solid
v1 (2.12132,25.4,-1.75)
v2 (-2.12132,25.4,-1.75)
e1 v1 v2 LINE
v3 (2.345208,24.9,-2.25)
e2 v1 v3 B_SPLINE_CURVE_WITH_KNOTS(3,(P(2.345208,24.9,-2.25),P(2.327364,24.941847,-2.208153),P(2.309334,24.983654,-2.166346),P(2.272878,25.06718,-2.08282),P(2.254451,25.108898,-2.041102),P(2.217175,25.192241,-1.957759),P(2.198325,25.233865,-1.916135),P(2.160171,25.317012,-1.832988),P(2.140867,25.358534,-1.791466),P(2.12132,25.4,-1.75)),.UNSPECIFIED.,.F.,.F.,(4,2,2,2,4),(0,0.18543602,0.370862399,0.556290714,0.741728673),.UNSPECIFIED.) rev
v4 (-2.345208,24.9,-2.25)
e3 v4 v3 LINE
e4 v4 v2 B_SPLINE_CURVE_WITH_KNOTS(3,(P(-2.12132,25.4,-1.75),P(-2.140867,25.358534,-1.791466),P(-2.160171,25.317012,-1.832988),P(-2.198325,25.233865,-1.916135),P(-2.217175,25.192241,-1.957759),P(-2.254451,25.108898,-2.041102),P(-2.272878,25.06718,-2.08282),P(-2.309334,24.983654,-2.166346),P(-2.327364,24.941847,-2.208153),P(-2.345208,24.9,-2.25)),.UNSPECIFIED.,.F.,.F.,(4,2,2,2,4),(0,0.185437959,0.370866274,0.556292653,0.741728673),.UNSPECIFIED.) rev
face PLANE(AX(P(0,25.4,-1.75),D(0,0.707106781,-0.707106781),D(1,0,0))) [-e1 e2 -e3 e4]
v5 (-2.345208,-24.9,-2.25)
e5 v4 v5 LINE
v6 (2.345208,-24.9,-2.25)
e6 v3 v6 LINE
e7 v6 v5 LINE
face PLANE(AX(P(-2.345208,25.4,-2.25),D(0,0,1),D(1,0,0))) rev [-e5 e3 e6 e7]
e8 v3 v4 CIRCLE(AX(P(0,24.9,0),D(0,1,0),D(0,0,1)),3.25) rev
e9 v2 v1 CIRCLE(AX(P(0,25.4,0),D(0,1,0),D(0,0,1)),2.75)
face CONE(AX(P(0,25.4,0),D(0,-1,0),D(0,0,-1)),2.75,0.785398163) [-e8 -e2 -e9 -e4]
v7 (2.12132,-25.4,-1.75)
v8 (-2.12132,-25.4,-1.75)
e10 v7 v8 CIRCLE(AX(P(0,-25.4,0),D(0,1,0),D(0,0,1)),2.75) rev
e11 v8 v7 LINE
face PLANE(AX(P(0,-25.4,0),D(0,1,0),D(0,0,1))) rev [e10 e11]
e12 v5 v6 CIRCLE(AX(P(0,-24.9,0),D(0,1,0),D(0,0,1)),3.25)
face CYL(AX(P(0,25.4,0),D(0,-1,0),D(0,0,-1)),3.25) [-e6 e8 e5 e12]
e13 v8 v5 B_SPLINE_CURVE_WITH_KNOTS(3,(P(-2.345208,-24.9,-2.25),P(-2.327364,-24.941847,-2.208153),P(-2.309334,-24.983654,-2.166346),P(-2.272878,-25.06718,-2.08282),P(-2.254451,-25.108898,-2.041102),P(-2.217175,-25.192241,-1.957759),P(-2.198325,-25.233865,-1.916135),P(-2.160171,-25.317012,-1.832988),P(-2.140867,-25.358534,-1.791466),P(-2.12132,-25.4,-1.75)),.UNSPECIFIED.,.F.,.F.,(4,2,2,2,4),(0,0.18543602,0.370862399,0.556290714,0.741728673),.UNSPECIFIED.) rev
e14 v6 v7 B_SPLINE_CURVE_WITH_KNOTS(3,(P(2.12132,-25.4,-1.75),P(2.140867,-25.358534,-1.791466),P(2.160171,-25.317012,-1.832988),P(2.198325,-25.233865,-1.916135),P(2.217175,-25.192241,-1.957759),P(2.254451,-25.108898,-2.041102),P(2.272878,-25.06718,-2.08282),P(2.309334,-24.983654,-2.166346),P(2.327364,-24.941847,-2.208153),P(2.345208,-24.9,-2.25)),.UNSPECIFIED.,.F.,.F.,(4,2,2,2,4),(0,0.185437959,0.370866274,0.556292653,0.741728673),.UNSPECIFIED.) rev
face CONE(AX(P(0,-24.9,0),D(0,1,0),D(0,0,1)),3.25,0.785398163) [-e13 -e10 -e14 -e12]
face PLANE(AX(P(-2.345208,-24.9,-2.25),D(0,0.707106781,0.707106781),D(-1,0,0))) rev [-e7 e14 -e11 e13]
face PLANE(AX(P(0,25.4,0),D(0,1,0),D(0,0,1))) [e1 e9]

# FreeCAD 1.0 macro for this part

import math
import FreeCAD as App
import Part
import Sketcher
from FreeCAD import Vector
Q = App.Units.Quantity


def edges_at(feature, points):
    """Names of the edges that pass closest to the given points."""
    edges = feature.Shape.Edges
    near = lambda p: min(range(len(edges)), key=lambda i: edges[i].distToShape(Part.Vertex(*p))[0])
    return sorted({f"Edge{near(p) + 1}" for p in points})

doc = App.newDocument("Part")
body = doc.addObject("PartDesign::Body", "Body")

# Sketch on XZ plane
sketch1 = doc.addObject("Sketcher::SketchObject", "Sketch")
body.addObject(sketch1)
sketch1.AttachmentSupport = (doc.XZ_Plane, [""])
sketch1.MapMode = "FlatFace"
sketch1.addGeometry([
    Part.LineSegment(Vector(2.3, -2.2, 0), Vector(-2.3, -2.2, 0)),
    Part.ArcOfCircle(Part.Circle(Vector(0, 0, 0), Vector(0, 0, 1), 3.2), math.radians(-44), math.radians(224)),
], False)
sketch1.addConstraint([
    Sketcher.Constraint("Coincident", 0, 1, 1, 1),
    Sketcher.Constraint("Coincident", 1, 2, 0, 2),
    Sketcher.Constraint("Horizontal", 0),
    Sketcher.Constraint("Coincident", 1, 3, -1, 1),
    Sketcher.Constraint("Radius", 1, Q("3.25 mm")),
    Sketcher.Constraint("DistanceY", 0, 1, -1, 1, Q("2.25 mm")),
])
pad1 = doc.addObject("PartDesign::Pad", "Pad")
body.addObject(pad1)
pad1.Profile = sketch1
pad1.Length = 50.8
pad1.Midplane = True
doc.recompute()

chamfer = doc.addObject("PartDesign::Chamfer", "Chamfer")
body.addObject(chamfer)
chamfer.Base = (pad1, edges_at(pad1, [
    (0, -25.4, -2.25),
    (0, -25.4, 3.25),
    (0, 25.4, 3.25),
    (0, 25.4, -2.25),
]))
chamfer.Size = 0.5

doc.recompute()
